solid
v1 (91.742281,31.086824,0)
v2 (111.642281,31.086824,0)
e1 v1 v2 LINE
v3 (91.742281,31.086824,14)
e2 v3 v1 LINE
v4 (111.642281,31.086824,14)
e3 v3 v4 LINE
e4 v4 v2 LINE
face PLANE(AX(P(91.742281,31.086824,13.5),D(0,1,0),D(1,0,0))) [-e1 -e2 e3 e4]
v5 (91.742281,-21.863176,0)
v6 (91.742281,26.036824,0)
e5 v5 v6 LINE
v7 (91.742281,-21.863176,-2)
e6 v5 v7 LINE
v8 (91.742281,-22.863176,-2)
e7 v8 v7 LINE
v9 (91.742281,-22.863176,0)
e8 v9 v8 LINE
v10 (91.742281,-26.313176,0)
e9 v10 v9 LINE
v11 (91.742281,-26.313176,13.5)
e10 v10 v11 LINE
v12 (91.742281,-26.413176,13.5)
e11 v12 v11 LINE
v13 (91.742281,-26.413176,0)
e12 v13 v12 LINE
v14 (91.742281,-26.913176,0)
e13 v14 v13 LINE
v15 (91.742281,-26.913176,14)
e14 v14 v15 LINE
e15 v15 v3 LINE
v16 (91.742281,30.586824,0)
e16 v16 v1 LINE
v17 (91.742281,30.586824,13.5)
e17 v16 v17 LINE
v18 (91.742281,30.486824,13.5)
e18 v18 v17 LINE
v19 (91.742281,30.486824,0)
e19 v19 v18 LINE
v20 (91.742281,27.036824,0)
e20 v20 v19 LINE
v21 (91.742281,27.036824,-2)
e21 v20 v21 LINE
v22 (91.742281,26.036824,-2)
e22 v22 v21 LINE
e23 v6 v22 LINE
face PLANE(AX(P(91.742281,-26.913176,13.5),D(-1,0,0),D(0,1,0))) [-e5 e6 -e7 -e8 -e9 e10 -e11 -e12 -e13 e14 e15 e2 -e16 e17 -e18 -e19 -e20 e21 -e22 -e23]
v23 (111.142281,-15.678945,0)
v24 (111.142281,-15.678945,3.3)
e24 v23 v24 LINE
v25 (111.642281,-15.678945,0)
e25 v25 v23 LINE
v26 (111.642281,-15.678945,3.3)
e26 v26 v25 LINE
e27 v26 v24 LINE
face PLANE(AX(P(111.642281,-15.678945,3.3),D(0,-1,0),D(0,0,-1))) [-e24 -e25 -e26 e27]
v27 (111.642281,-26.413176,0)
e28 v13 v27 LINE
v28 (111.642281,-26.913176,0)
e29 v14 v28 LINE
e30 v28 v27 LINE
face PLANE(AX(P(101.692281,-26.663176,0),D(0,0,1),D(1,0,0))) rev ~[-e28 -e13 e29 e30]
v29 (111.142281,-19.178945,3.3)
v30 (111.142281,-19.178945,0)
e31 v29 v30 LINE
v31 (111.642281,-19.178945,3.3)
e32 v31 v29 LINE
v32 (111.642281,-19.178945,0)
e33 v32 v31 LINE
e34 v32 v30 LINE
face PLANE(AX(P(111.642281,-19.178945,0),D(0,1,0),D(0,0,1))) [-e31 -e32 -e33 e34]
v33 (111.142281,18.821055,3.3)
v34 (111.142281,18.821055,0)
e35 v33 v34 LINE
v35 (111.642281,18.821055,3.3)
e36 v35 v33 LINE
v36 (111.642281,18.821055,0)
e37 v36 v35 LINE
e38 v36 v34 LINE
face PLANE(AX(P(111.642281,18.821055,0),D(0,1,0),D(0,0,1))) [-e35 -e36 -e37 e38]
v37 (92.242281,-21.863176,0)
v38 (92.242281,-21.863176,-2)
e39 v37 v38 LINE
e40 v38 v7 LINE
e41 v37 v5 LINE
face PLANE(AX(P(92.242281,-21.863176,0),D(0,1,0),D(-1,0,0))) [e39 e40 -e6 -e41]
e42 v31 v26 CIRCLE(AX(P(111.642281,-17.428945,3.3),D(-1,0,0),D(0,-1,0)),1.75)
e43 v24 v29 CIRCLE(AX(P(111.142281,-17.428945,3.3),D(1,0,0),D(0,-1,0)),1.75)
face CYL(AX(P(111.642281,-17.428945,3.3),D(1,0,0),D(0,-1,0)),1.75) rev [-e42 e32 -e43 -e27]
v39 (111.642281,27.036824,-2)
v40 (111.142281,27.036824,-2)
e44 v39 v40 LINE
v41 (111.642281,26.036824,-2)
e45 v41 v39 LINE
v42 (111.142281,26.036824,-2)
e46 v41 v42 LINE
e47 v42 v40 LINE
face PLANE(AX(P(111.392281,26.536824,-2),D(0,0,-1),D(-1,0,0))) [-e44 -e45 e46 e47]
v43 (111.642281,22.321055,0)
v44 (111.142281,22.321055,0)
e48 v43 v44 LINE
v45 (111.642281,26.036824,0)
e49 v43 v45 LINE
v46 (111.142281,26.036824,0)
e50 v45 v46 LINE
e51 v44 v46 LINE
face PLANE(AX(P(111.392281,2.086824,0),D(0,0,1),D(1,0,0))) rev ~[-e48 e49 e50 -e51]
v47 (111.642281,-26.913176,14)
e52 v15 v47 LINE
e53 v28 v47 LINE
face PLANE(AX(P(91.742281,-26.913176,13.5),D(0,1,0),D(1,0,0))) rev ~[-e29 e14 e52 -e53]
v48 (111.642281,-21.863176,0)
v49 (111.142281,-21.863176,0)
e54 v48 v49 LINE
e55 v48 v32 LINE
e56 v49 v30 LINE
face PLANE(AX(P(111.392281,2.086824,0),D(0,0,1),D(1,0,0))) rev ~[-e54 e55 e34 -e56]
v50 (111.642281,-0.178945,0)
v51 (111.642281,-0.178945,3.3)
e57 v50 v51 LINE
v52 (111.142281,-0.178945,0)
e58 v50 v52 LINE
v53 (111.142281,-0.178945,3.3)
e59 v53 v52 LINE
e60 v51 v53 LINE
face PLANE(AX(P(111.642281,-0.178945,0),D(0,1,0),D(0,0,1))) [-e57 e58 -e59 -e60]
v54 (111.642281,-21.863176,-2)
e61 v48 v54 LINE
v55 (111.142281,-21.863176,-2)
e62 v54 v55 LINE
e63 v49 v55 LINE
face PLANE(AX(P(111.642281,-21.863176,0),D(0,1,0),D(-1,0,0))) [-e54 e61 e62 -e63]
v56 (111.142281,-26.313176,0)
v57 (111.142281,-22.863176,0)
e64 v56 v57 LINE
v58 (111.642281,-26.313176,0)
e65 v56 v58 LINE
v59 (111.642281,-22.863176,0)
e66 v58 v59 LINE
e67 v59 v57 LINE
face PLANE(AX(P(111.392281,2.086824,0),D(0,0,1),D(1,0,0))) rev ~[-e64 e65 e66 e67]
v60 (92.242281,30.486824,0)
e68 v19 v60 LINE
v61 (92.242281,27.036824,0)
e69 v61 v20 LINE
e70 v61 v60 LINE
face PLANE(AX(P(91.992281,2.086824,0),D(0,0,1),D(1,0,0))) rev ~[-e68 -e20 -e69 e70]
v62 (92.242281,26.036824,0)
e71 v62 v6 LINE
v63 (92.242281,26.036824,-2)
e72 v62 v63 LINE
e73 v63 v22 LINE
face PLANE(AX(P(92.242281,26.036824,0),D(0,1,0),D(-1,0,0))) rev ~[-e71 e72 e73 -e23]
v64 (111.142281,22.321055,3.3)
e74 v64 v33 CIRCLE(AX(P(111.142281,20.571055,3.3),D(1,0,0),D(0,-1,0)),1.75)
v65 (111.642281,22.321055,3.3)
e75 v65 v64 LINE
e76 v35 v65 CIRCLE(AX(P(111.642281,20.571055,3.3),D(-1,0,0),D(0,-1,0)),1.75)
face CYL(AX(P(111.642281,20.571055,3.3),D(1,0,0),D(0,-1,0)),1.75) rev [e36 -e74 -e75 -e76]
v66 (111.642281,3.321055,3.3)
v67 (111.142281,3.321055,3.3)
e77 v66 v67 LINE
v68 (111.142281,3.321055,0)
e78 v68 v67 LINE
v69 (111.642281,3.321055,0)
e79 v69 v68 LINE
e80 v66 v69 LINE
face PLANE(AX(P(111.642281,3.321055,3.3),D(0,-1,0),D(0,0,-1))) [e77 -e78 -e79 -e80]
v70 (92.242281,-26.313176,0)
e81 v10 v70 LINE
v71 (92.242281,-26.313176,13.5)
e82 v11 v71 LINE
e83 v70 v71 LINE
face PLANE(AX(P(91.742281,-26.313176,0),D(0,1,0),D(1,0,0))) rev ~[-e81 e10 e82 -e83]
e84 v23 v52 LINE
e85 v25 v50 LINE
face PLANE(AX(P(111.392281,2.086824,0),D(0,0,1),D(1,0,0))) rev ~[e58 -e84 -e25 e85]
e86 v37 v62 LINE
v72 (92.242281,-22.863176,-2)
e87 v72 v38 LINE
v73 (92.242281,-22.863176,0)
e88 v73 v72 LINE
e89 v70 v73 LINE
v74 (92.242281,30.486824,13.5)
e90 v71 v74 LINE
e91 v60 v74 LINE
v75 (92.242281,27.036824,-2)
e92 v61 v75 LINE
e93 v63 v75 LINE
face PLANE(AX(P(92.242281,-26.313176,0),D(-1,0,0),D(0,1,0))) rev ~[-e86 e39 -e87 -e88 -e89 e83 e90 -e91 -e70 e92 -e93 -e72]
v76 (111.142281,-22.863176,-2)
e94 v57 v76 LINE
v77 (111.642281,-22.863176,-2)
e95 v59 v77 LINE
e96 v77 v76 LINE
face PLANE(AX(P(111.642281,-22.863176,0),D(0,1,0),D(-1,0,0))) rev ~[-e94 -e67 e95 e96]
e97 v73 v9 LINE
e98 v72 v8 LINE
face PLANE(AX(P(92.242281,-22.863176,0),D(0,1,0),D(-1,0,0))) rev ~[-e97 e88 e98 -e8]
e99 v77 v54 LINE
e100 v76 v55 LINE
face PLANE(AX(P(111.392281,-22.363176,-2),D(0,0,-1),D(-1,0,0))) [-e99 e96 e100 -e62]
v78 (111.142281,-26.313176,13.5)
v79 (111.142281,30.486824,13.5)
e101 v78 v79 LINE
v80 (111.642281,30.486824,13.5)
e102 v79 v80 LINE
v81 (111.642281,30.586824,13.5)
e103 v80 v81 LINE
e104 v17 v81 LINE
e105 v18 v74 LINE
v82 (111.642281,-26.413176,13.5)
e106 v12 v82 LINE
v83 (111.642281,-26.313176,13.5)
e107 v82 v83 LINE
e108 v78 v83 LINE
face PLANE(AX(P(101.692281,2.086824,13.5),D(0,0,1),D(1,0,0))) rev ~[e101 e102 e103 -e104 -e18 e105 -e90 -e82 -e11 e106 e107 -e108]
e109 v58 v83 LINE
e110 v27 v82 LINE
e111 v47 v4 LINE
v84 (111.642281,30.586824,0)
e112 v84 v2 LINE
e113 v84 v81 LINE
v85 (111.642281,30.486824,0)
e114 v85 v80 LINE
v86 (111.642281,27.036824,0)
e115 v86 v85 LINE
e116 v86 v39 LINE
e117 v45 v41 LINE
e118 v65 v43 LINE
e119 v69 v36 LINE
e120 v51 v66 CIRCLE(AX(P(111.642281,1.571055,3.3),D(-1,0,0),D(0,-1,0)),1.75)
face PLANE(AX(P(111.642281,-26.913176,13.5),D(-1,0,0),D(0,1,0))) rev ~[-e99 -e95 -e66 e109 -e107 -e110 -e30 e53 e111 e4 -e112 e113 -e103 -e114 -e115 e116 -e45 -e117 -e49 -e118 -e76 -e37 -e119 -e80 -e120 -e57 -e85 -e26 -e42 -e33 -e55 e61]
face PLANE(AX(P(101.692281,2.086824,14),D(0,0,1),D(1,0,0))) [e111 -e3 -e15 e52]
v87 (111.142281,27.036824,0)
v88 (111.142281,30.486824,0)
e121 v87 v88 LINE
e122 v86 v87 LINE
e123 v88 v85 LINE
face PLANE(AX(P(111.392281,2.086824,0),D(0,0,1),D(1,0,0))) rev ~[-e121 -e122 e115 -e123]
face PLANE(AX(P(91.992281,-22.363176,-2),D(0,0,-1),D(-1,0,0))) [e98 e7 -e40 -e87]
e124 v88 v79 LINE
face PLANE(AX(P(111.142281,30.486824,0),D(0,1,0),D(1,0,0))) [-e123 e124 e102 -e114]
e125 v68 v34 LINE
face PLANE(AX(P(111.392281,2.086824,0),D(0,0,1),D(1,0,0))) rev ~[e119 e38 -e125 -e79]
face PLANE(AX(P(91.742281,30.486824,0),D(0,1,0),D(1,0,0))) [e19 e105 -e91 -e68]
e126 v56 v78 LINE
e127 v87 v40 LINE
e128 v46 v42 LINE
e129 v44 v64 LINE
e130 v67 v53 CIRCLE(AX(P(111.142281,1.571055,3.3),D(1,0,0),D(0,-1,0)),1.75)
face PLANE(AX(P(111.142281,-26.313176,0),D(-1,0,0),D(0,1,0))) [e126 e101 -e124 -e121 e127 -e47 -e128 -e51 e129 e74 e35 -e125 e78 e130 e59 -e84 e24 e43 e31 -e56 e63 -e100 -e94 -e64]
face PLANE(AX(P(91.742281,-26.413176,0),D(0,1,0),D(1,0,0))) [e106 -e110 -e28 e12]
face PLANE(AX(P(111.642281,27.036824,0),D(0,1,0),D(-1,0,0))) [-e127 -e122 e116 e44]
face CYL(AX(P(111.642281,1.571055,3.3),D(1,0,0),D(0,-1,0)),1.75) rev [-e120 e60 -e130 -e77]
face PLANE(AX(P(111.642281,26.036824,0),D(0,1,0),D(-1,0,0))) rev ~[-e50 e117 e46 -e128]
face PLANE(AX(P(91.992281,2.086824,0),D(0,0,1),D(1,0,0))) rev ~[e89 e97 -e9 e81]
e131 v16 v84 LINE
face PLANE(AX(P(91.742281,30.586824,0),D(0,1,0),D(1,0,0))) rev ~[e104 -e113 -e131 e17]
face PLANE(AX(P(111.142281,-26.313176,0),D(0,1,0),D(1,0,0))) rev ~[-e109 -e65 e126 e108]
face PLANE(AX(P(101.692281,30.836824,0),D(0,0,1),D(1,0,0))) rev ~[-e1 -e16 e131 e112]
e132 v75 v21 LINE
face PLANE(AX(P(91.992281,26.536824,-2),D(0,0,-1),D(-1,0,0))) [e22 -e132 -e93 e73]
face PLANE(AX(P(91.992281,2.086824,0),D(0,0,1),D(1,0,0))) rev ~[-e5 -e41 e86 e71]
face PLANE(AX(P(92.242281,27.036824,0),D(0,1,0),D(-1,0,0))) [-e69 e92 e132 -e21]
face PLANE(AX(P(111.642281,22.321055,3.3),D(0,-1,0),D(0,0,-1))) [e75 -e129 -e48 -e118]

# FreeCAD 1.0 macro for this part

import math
import FreeCAD as App
import Part
import Sketcher
from FreeCAD import Vector


def add_polygon(sketch, points):
    """Adds a closed chain of lines whose ends are joined by coincident constraints."""
    first, n = sketch.GeometryCount, len(points)
    for a, b in zip(points, points[1:] + points[:1]):
        sketch.addGeometry(Part.LineSegment(App.Vector(*a, 0), App.Vector(*b, 0)), False)
    for i in range(n):
        sketch.addConstraint(Sketcher.Constraint("Coincident", first + i, 2, first + (i + 1) % n, 1))

doc = App.newDocument("Part")
params = doc.addObject("Spreadsheet::Sheet", "Params")
for row, (alias, value) in enumerate([
    ("sketch1_width", "0.5 mm"),
    ("sketch1_height", "56.8 mm"),
    ("pad1_length", "13.5 mm"),
    ("sketch2_width", "0.5 mm"),
    ("sketch2_height", "56.8 mm"),
    ("pad2_length", "13.5 mm"),
    ("sketch3_width", "19.9 mm"),
    ("sketch3_height", "0.5 mm"),
    ("pad3_length", "13.5 mm"),
    ("sketch4_width", "19.9 mm"),
    ("sketch4_height", "0.5 mm"),
    ("pad4_length", "13.5 mm"),
    ("sketch5_height", "58 mm"),
    ("sketch5_width", "19.9 mm"),
    ("pad5_length", "0.5 mm"),
    ("sketch6_radius", "1.75 mm"),
    ("sketch6_height", "3.3 mm"),
    ("pocket1_length", "10.5 mm"),
    ("sketch7_height", "1 mm"),
    ("sketch7_width", "0.5 mm"),
    ("pad6_length", "2 mm"),
], start=1):
    params.set(f"A{row}", alias)
    params.set(f"B{row}", "=" + value)
    params.setAlias(f"B{row}", alias)

body = doc.addObject("PartDesign::Body", "Body")

# Sketch on XY plane
sketch1 = doc.addObject("Sketcher::SketchObject", "Sketch")
body.addObject(sketch1)
sketch1.AttachmentSupport = (doc.XY_Plane, [""])
sketch1.MapMode = "FlatFace"
add_polygon(sketch1, [(91.7, 30.5), (91.7, -26.3), (92.2, -26.3), (92.2, 30.5)])  # lines 0-3
sketch1.addConstraint(Sketcher.Constraint("Vertical", 0))
sketch1.addConstraint(Sketcher.Constraint("Horizontal", 1))
sketch1.addConstraint(Sketcher.Constraint("Vertical", 2))
sketch1.addConstraint(Sketcher.Constraint("Horizontal", 3))
sketch1.addConstraint(Sketcher.Constraint("DistanceX", 1, 1, 1, 2, 0.5))
sketch1.addConstraint(Sketcher.Constraint("DistanceY", 0, 2, 0, 1, 56.8))
sketch1.addConstraint(Sketcher.Constraint("DistanceX", -1, 1, 0, 2, 91.742281))
sketch1.addConstraint(Sketcher.Constraint("DistanceY", 0, 2, -1, 1, 26.313176))
sketch1.setExpression("Constraints[8]", "Params.sketch1_width")
sketch1.setExpression("Constraints[9]", "Params.sketch1_height")
pad1 = doc.addObject("PartDesign::Pad", "Pad")
body.addObject(pad1)
pad1.Profile = sketch1
pad1.setExpression("Length", "Params.pad1_length")
body2 = doc.addObject("PartDesign::Body", "Body001")

# Sketch on XY plane
sketch2 = doc.addObject("Sketcher::SketchObject", "Sketch001")
body2.addObject(sketch2)
sketch2.AttachmentSupport = (doc.getObject("XY_Plane001"), [""])
sketch2.MapMode = "FlatFace"
add_polygon(sketch2, [(111.1, 30.5), (111.1, -26.3), (111.6, -26.3), (111.6, 30.5)])  # lines 0-3
sketch2.addConstraint(Sketcher.Constraint("Vertical", 0))
sketch2.addConstraint(Sketcher.Constraint("Horizontal", 1))
sketch2.addConstraint(Sketcher.Constraint("Vertical", 2))
sketch2.addConstraint(Sketcher.Constraint("Horizontal", 3))
sketch2.addConstraint(Sketcher.Constraint("DistanceX", 1, 1, 1, 2, 0.5))
sketch2.addConstraint(Sketcher.Constraint("DistanceY", 0, 2, 0, 1, 56.8))
sketch2.addConstraint(Sketcher.Constraint("DistanceX", -1, 1, 0, 2, 111.142281))
sketch2.addConstraint(Sketcher.Constraint("DistanceY", 0, 2, -1, 1, 26.313176))
sketch2.setExpression("Constraints[8]", "Params.sketch2_width")
sketch2.setExpression("Constraints[9]", "Params.sketch2_height")
pad2 = doc.addObject("PartDesign::Pad", "Pad001")
body2.addObject(pad2)
pad2.Profile = sketch2
pad2.setExpression("Length", "Params.pad2_length")
body3 = doc.addObject("PartDesign::Body", "Body002")

# Sketch on XY plane
sketch3 = doc.addObject("Sketcher::SketchObject", "Sketch002")
body3.addObject(sketch3)
sketch3.AttachmentSupport = (doc.getObject("XY_Plane002"), [""])
sketch3.MapMode = "FlatFace"
add_polygon(sketch3, [(91.7, 31.1), (91.7, 30.6), (111.6, 30.6), (111.6, 31.1)])  # lines 0-3
sketch3.addConstraint(Sketcher.Constraint("Vertical", 0))
sketch3.addConstraint(Sketcher.Constraint("Horizontal", 1))
sketch3.addConstraint(Sketcher.Constraint("Vertical", 2))
sketch3.addConstraint(Sketcher.Constraint("Horizontal", 3))
sketch3.addConstraint(Sketcher.Constraint("DistanceX", 1, 1, 1, 2, 19.9))
sketch3.addConstraint(Sketcher.Constraint("DistanceY", 0, 2, 0, 1, 0.5))
sketch3.addConstraint(Sketcher.Constraint("DistanceX", -1, 1, 0, 2, 91.742281))
sketch3.addConstraint(Sketcher.Constraint("DistanceY", -1, 1, 0, 2, 30.586824))
sketch3.setExpression("Constraints[8]", "Params.sketch3_width")
sketch3.setExpression("Constraints[9]", "Params.sketch3_height")
pad3 = doc.addObject("PartDesign::Pad", "Pad002")
body3.addObject(pad3)
pad3.Profile = sketch3
pad3.setExpression("Length", "Params.pad3_length")
body4 = doc.addObject("PartDesign::Body", "Body003")

# Sketch on XY plane
sketch4 = doc.addObject("Sketcher::SketchObject", "Sketch003")
body4.addObject(sketch4)
sketch4.AttachmentSupport = (doc.getObject("XY_Plane003"), [""])
sketch4.MapMode = "FlatFace"
add_polygon(sketch4, [(91.7, -26.4), (91.7, -26.9), (111.6, -26.9), (111.6, -26.4)])  # lines 0-3
sketch4.addConstraint(Sketcher.Constraint("Vertical", 0))
sketch4.addConstraint(Sketcher.Constraint("Horizontal", 1))
sketch4.addConstraint(Sketcher.Constraint("Vertical", 2))
sketch4.addConstraint(Sketcher.Constraint("Horizontal", 3))
sketch4.addConstraint(Sketcher.Constraint("DistanceX", 1, 1, 1, 2, 19.9))
sketch4.addConstraint(Sketcher.Constraint("DistanceY", 0, 2, 0, 1, 0.5))
sketch4.addConstraint(Sketcher.Constraint("DistanceX", -1, 1, 0, 2, 91.742281))
sketch4.addConstraint(Sketcher.Constraint("DistanceY", 0, 2, -1, 1, 26.913176))
sketch4.setExpression("Constraints[8]", "Params.sketch4_width")
sketch4.setExpression("Constraints[9]", "Params.sketch4_height")
pad4 = doc.addObject("PartDesign::Pad", "Pad003")
body4.addObject(pad4)
pad4.Profile = sketch4
pad4.setExpression("Length", "Params.pad4_length")
body.AllowCompound = True
doc.recompute()

boolean = doc.addObject("PartDesign::Boolean", "Boolean")
body.addObject(boolean)
boolean.Type = "Fuse"
boolean.addObjects([body2])
doc.recompute()

boolean2 = doc.addObject("PartDesign::Boolean", "Boolean001")
body.addObject(boolean2)
boolean2.Type = "Fuse"
boolean2.addObjects([body3])
doc.recompute()

boolean3 = doc.addObject("PartDesign::Boolean", "Boolean002")
body.addObject(boolean3)
boolean3.Type = "Fuse"
boolean3.addObjects([body4])

# Sketch on XY plane
sketch5 = doc.addObject("Sketcher::SketchObject", "Sketch004")
body.addObject(sketch5)
sketch5.AttachmentSupport = (doc.XY_Plane, [""])
sketch5.MapMode = "FlatFace"
sketch5.AttachmentOffset = App.Placement(Vector(0, 0, 13.5), App.Rotation())
add_polygon(sketch5, [(92, 31), (92, -27), (112, -27), (112, 31)])  # lines 0-3
sketch5.addConstraint(Sketcher.Constraint("Vertical", 0))
sketch5.addConstraint(Sketcher.Constraint("Horizontal", 1))
sketch5.addConstraint(Sketcher.Constraint("Vertical", 2))
sketch5.addConstraint(Sketcher.Constraint("Horizontal", 3))
sketch5.addConstraint(Sketcher.Constraint("DistanceY", 0, 2, 0, 1, 58.0))
sketch5.addConstraint(Sketcher.Constraint("DistanceX", 1, 1, 1, 2, 19.9))
sketch5.addConstraint(Sketcher.Constraint("DistanceX", -1, 1, 0, 2, 91.742281))
sketch5.addConstraint(Sketcher.Constraint("DistanceY", 0, 2, -1, 1, 26.913176))
sketch5.setExpression("Constraints[8]", "Params.sketch5_height")
sketch5.setExpression("Constraints[9]", "Params.sketch5_width")
pad5 = doc.addObject("PartDesign::Pad", "Pad004")
body.addObject(pad5)
pad5.Profile = sketch5
pad5.setExpression("Length", "Params.pad5_length")

# Sketch on YZ plane
sketch6 = doc.addObject("Sketcher::SketchObject", "Sketch005")
body.addObject(sketch6)
sketch6.AttachmentSupport = (doc.YZ_Plane, [""])
sketch6.MapMode = "FlatFace"
sketch6.AttachmentOffset = App.Placement(Vector(0, 0, 111.642281), App.Rotation())
sketch6.addGeometry(Part.LineSegment(Vector(18.8, 0, 0), Vector(22.3, 0, 0)), False)
sketch6.addGeometry(Part.LineSegment(Vector(22.3, 0, 0), Vector(22.3, 3.3, 0)), False)
sketch6.addGeometry(Part.ArcOfCircle(Part.Circle(Vector(20.6, 3.3, 0), Vector(0, 0, 1), 1.8), math.radians(0), math.radians(180)), False)
sketch6.addGeometry(Part.LineSegment(Vector(18.8, 3.3, 0), Vector(18.8, 0, 0)), False)
sketch6.addGeometry(Part.LineSegment(Vector(-0.2, 0, 0), Vector(3.3, 0, 0)), False)
sketch6.addGeometry(Part.LineSegment(Vector(3.3, 0, 0), Vector(3.3, 3.3, 0)), False)
sketch6.addGeometry(Part.ArcOfCircle(Part.Circle(Vector(1.6, 3.3, 0), Vector(0, 0, 1), 1.8), math.radians(0), math.radians(180)), False)
sketch6.addGeometry(Part.LineSegment(Vector(-0.2, 3.3, 0), Vector(-0.2, 0, 0)), False)
sketch6.addGeometry(Part.LineSegment(Vector(-19.2, 0, 0), Vector(-15.7, 0, 0)), False)
sketch6.addGeometry(Part.LineSegment(Vector(-15.7, 0, 0), Vector(-15.7, 3.3, 0)), False)
sketch6.addGeometry(Part.ArcOfCircle(Part.Circle(Vector(-17.4, 3.3, 0), Vector(0, 0, 1), 1.8), math.radians(0), math.radians(180)), False)
sketch6.addGeometry(Part.LineSegment(Vector(-19.2, 3.3, 0), Vector(-19.2, 0, 0)), False)
sketch6.addConstraint(Sketcher.Constraint("Coincident", 0, 2, 1, 1))
sketch6.addConstraint(Sketcher.Constraint("Tangent", 1, 2, 2, 1))
sketch6.addConstraint(Sketcher.Constraint("Tangent", 2, 2, 3, 1))
sketch6.addConstraint(Sketcher.Constraint("Coincident", 3, 2, 0, 1))
sketch6.addConstraint(Sketcher.Constraint("Coincident", 4, 2, 5, 1))
sketch6.addConstraint(Sketcher.Constraint("Tangent", 5, 2, 6, 1))
sketch6.addConstraint(Sketcher.Constraint("Tangent", 6, 2, 7, 1))
sketch6.addConstraint(Sketcher.Constraint("Coincident", 7, 2, 4, 1))
sketch6.addConstraint(Sketcher.Constraint("Coincident", 8, 2, 9, 1))
sketch6.addConstraint(Sketcher.Constraint("Tangent", 9, 2, 10, 1))
sketch6.addConstraint(Sketcher.Constraint("Tangent", 10, 2, 11, 1))
sketch6.addConstraint(Sketcher.Constraint("Coincident", 11, 2, 8, 1))
sketch6.addConstraint(Sketcher.Constraint("Horizontal", 0))
sketch6.addConstraint(Sketcher.Constraint("Vertical", 1))
sketch6.addConstraint(Sketcher.Constraint("Vertical", 3))
sketch6.addConstraint(Sketcher.Constraint("Horizontal", 4))
sketch6.addConstraint(Sketcher.Constraint("Vertical", 5))
sketch6.addConstraint(Sketcher.Constraint("Vertical", 7))
sketch6.addConstraint(Sketcher.Constraint("Horizontal", 8))
sketch6.addConstraint(Sketcher.Constraint("Vertical", 9))
sketch6.addConstraint(Sketcher.Constraint("Vertical", 11))
sketch6.addConstraint(Sketcher.Constraint("Equal", 2, 6))
sketch6.addConstraint(Sketcher.Constraint("Equal", 6, 10))
sketch6.addConstraint(Sketcher.Constraint("PointOnObject", 0, 2, -1))
sketch6.addConstraint(Sketcher.Constraint("PointOnObject", 4, 2, -1))
sketch6.addConstraint(Sketcher.Constraint("PointOnObject", 8, 2, -1))
sketch6.addConstraint(Sketcher.Constraint("Horizontal", 2, 3, 6, 3))
sketch6.addConstraint(Sketcher.Constraint("Horizontal", 6, 3, 10, 3))
sketch6.addConstraint(Sketcher.Constraint("Radius", 2, 1.75))
sketch6.addConstraint(Sketcher.Constraint("DistanceY", 1, 1, 1, 2, 3.3))
sketch6.addConstraint(Sketcher.Constraint("DistanceX", 6, 3, 2, 3, 19.0))
sketch6.addConstraint(Sketcher.Constraint("DistanceX", 10, 3, 6, 3, 19.0))
sketch6.addConstraint(Sketcher.Constraint("DistanceX", -1, 1, 2, 3, 20.571055))
sketch6.setExpression("Constraints[28]", "Params.sketch6_radius")
sketch6.setExpression("Constraints[29]", "Params.sketch6_height")
pocket1 = doc.addObject("PartDesign::Pocket", "Pocket")
body.addObject(pocket1)
pocket1.Profile = sketch6
pocket1.setExpression("Length", "Params.pocket1_length")

# Sketch on XY plane
sketch7 = doc.addObject("Sketcher::SketchObject", "Sketch006")
body.addObject(sketch7)
sketch7.AttachmentSupport = (doc.XY_Plane, [""])
sketch7.MapMode = "FlatFace"
add_polygon(sketch7, [(111.6, 27), (111.6, 26), (111.1, 26), (111.1, 27)])  # lines 0-3
add_polygon(sketch7, [(92.2, 27), (92.2, 26), (91.7, 26), (91.7, 27)])  # lines 4-7
add_polygon(sketch7, [(111.6, -21.9), (111.6, -22.9), (111.1, -22.9), (111.1, -21.9)])  # lines 8-11
add_polygon(sketch7, [(92.2, -21.9), (92.2, -22.9), (91.7, -22.9), (91.7, -21.9)])  # lines 12-15
sketch7.addConstraint(Sketcher.Constraint("Vertical", 0))
sketch7.addConstraint(Sketcher.Constraint("Horizontal", 1))
sketch7.addConstraint(Sketcher.Constraint("Vertical", 2))
sketch7.addConstraint(Sketcher.Constraint("Horizontal", 3))
sketch7.addConstraint(Sketcher.Constraint("Vertical", 4))
sketch7.addConstraint(Sketcher.Constraint("Horizontal", 5))
sketch7.addConstraint(Sketcher.Constraint("Vertical", 6))
sketch7.addConstraint(Sketcher.Constraint("Horizontal", 7))
sketch7.addConstraint(Sketcher.Constraint("Vertical", 8))
sketch7.addConstraint(Sketcher.Constraint("Horizontal", 9))
sketch7.addConstraint(Sketcher.Constraint("Vertical", 10))
sketch7.addConstraint(Sketcher.Constraint("Horizontal", 11))
sketch7.addConstraint(Sketcher.Constraint("Vertical", 12))
sketch7.addConstraint(Sketcher.Constraint("Horizontal", 13))
sketch7.addConstraint(Sketcher.Constraint("Vertical", 14))
sketch7.addConstraint(Sketcher.Constraint("Horizontal", 15))
sketch7.addConstraint(Sketcher.Constraint("Horizontal", 1, 2, 4, 2))
sketch7.addConstraint(Sketcher.Constraint("Horizontal", 3, 2, 6, 2))
sketch7.addConstraint(Sketcher.Constraint("Horizontal", 9, 2, 12, 2))
sketch7.addConstraint(Sketcher.Constraint("Horizontal", 11, 2, 14, 2))
sketch7.addConstraint(Sketcher.Constraint("Vertical", 3, 2, 8, 2))
sketch7.addConstraint(Sketcher.Constraint("Vertical", 2, 2, 9, 2))
sketch7.addConstraint(Sketcher.Constraint("Vertical", 7, 2, 12, 2))
sketch7.addConstraint(Sketcher.Constraint("Vertical", 6, 2, 13, 2))
sketch7.addConstraint(Sketcher.Constraint("Equal", 3, 5))
sketch7.addConstraint(Sketcher.Constraint("Equal", 6, 8))
sketch7.addConstraint(Sketcher.Constraint("DistanceY", 0, 2, 0, 1, 1.0))
sketch7.addConstraint(Sketcher.Constraint("DistanceX", 1, 2, 1, 1, 0.5))
sketch7.addConstraint(Sketcher.Constraint("DistanceX", 4, 2, 1, 2, 18.9))
sketch7.addConstraint(Sketcher.Constraint("DistanceY", 8, 2, 0, 2, 48.9))
sketch7.addConstraint(Sketcher.Constraint("DistanceX", -1, 1, 0, 2, 111.642281))
sketch7.addConstraint(Sketcher.Constraint("DistanceY", -1, 1, 0, 2, 26.036824))
sketch7.setExpression("Constraints[42]", "Params.sketch7_height")
sketch7.setExpression("Constraints[43]", "Params.sketch7_width")
pad6 = doc.addObject("PartDesign::Pad", "Pad005")
body.addObject(pad6)
pad6.Profile = sketch7
pad6.setExpression("Length", "Params.pad6_length")
pad6.Reversed = True

doc.recompute()
